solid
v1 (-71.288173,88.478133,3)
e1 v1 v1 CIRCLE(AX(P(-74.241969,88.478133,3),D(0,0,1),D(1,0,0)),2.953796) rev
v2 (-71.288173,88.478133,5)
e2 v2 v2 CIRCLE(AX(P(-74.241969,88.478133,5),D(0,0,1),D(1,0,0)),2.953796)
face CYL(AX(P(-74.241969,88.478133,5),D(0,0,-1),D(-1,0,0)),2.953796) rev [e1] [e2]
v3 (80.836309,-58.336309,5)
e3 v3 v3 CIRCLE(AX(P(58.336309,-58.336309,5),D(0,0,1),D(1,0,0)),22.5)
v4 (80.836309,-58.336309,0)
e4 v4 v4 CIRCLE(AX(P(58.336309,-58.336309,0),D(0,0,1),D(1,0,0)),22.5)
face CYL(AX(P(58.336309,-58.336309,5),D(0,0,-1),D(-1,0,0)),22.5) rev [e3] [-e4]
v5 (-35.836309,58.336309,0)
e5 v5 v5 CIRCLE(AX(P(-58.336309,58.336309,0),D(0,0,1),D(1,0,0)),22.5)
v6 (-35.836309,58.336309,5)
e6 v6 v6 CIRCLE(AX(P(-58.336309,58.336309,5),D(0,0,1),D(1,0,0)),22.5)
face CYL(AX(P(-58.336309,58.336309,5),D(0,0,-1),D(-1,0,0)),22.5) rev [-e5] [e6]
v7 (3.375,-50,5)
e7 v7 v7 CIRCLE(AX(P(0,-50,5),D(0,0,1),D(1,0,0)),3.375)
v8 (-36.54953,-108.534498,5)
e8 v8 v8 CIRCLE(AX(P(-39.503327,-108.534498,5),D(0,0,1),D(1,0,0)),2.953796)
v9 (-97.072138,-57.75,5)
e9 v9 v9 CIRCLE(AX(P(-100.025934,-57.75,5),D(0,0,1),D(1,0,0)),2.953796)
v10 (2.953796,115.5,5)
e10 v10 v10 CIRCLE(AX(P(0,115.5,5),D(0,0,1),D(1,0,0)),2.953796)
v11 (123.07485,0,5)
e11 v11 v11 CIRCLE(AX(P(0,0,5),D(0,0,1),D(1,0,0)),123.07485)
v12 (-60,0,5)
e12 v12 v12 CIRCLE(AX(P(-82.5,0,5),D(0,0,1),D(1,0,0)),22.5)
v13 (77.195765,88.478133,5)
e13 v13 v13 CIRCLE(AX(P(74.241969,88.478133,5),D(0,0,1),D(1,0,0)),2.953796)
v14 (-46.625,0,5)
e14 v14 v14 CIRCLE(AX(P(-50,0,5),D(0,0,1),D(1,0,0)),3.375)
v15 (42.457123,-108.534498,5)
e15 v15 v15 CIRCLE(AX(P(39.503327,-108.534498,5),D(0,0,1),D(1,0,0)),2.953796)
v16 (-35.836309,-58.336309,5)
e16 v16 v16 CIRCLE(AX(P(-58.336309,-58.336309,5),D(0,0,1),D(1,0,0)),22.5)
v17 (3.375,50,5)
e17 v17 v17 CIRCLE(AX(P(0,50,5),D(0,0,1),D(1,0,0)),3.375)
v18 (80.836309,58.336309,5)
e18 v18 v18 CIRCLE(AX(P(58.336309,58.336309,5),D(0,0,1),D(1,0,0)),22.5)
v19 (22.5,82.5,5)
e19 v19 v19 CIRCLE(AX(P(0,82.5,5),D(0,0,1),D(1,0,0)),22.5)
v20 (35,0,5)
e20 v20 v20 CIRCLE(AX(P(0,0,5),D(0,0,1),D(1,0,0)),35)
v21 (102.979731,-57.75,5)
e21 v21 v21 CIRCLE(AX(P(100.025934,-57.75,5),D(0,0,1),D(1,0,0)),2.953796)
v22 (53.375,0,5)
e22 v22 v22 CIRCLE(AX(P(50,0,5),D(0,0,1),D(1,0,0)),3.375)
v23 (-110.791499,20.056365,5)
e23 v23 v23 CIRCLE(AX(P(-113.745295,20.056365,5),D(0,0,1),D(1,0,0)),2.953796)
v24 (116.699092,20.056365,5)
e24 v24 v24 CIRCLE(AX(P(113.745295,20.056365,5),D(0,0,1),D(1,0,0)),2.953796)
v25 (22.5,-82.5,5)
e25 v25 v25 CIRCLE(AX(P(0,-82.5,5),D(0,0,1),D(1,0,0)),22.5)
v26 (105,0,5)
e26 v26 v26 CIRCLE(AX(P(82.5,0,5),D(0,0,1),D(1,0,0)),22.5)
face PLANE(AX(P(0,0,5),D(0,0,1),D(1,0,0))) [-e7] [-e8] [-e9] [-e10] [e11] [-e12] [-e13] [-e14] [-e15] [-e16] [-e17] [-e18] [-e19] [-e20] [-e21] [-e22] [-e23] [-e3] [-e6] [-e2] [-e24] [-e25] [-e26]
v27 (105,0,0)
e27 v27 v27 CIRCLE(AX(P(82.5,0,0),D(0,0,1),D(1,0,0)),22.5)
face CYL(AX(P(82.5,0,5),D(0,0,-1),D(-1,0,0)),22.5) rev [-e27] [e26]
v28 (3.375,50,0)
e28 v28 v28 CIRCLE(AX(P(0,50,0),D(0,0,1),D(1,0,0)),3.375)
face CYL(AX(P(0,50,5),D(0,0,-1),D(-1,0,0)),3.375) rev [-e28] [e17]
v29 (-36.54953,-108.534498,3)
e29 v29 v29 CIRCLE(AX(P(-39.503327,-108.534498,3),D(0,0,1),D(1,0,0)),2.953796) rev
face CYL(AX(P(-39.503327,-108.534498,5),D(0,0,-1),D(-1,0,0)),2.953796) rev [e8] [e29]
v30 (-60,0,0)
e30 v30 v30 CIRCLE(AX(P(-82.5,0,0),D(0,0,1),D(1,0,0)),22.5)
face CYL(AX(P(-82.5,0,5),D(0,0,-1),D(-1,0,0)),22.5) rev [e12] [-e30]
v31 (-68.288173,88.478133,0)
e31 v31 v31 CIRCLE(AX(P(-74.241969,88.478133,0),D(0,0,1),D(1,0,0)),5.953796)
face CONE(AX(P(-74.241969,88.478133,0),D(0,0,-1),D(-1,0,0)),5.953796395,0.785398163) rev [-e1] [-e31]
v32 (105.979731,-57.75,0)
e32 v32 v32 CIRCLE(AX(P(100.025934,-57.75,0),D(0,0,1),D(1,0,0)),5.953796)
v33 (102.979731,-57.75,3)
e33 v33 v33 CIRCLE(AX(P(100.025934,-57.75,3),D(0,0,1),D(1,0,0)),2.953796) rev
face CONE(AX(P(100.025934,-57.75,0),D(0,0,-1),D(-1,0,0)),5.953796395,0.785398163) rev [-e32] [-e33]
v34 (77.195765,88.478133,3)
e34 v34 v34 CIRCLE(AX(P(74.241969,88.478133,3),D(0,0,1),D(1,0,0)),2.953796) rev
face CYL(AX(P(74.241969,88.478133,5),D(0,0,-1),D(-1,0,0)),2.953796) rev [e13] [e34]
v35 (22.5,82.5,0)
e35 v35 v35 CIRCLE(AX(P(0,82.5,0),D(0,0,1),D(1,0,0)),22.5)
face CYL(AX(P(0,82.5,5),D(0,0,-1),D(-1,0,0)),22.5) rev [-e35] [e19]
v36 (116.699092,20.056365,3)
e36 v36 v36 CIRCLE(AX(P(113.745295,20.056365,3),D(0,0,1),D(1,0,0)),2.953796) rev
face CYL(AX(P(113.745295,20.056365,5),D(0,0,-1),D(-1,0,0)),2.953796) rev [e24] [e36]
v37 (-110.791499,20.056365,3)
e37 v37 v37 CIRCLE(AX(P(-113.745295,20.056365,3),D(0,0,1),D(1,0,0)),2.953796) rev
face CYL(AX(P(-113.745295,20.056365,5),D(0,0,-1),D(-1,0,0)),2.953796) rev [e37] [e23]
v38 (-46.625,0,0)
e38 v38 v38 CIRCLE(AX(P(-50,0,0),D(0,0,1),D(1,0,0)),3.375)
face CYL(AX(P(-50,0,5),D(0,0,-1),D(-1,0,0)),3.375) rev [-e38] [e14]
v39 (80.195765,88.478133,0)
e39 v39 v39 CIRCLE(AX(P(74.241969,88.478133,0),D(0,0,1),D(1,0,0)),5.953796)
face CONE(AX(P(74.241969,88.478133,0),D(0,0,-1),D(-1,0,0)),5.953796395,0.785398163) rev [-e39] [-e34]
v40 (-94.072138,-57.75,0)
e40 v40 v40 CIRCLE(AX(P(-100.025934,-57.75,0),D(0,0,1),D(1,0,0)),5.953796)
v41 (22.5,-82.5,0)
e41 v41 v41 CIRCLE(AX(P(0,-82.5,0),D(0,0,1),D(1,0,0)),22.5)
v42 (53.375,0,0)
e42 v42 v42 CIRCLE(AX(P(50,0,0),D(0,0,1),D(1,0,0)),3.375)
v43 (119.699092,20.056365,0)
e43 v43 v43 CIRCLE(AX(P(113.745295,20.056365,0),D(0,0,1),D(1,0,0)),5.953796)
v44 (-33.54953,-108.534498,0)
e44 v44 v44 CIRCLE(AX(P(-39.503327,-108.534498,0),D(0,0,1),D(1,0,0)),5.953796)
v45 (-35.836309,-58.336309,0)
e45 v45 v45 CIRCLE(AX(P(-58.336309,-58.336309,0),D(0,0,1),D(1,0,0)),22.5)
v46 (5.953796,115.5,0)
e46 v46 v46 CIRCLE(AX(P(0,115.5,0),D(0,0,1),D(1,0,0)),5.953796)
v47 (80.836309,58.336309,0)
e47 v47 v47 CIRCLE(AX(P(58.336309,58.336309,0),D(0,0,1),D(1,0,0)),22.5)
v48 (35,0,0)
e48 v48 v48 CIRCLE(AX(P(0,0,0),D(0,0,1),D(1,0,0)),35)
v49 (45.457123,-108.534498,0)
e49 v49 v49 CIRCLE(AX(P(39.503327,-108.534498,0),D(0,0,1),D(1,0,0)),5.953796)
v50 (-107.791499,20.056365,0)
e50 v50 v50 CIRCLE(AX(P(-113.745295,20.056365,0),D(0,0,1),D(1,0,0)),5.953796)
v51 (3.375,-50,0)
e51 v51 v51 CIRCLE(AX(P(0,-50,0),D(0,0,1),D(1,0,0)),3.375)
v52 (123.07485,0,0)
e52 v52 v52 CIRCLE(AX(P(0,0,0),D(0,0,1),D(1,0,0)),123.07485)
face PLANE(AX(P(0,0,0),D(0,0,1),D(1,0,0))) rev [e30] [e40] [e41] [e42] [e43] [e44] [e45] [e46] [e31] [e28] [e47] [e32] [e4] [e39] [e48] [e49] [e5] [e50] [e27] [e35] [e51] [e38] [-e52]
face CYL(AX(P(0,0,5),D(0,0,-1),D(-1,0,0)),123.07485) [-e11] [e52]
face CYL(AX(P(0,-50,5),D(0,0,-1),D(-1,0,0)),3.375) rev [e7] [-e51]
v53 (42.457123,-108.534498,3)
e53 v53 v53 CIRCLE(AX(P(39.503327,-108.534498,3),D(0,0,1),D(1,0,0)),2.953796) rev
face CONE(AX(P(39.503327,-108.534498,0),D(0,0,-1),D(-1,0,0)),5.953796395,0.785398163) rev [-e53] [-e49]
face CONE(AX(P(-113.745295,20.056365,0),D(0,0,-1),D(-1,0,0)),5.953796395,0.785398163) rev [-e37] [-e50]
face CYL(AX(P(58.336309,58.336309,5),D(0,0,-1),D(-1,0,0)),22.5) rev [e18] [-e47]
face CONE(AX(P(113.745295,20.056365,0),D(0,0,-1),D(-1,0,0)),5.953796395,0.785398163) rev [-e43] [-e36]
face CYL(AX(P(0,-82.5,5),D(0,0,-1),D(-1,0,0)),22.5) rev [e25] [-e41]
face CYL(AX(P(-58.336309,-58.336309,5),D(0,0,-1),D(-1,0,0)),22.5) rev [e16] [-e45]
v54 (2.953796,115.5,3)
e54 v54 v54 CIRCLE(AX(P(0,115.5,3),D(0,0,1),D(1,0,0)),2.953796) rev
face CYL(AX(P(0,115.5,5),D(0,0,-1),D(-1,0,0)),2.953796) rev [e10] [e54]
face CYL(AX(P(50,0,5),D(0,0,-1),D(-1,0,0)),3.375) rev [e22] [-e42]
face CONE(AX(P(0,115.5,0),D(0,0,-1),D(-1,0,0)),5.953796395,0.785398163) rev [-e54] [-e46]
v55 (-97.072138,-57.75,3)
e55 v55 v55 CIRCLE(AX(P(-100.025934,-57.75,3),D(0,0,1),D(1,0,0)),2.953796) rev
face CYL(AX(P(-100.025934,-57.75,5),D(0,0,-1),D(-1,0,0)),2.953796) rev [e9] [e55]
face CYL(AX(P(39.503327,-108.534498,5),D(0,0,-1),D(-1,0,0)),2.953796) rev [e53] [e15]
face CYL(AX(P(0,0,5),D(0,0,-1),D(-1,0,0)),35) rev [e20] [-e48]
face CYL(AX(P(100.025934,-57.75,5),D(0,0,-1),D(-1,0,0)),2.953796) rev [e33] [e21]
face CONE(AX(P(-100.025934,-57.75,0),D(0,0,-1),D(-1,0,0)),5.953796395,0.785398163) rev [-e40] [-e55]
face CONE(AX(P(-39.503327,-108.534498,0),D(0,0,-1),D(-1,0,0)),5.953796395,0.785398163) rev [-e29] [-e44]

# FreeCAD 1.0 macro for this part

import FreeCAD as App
import Part
import Sketcher


def edges_at(feature, points):
    """Names of the edges that pass closest to the given points."""
    edges = feature.Shape.Edges
    near = lambda p: min(range(len(edges)), key=lambda i: edges[i].distToShape(Part.Vertex(*p))[0])
    return sorted({f"Edge{near(p) + 1}" for p in points})

doc = App.newDocument("Part")
body = doc.addObject("PartDesign::Body", "Body")

# Sketch on XY plane
sketch1 = body.newObject("Sketcher::SketchObject", "Sketch")
sketch1.AttachmentSupport = (doc.getObject("XY_Plane"), [""])
sketch1.MapMode = "FlatFace"
sketch1.addGeometry([
    Part.Circle(App.Vector(0, 0, 0), App.Vector(0, 0, 1), 123.1),  # 0
    Part.Circle(App.Vector(-100, -57.8, 0), App.Vector(0, 0, 1), 3),  # 1
    Part.Circle(App.Vector(-39.5, -108.5, 0), App.Vector(0, 0, 1), 3),  # 2
    Part.Circle(App.Vector(-58.3, -58.3, 0), App.Vector(0, 0, 1), 22.5),  # 3
    Part.Circle(App.Vector(0, -82.5, 0), App.Vector(0, 0, 1), 22.5),  # 4
    Part.Circle(App.Vector(-82.5, 0, 0), App.Vector(0, 0, 1), 22.5),  # 5
    Part.Circle(App.Vector(-50, 0, 0), App.Vector(0, 0, 1), 3.4),  # 6
    Part.Circle(App.Vector(0, 0, 0), App.Vector(0, 0, 1), 35),  # 7
    Part.Circle(App.Vector(39.5, -108.5, 0), App.Vector(0, 0, 1), 3),  # 8
    Part.Circle(App.Vector(58.3, -58.3, 0), App.Vector(0, 0, 1), 22.5),  # 9
    Part.Circle(App.Vector(100, -57.8, 0), App.Vector(0, 0, 1), 3),  # 10
    Part.Circle(App.Vector(0, -50, 0), App.Vector(0, 0, 1), 3.4),  # 11
    Part.Circle(App.Vector(50, 0, 0), App.Vector(0, 0, 1), 3.4),  # 12
    Part.Circle(App.Vector(82.5, 0, 0), App.Vector(0, 0, 1), 22.5),  # 13
    Part.Circle(App.Vector(-113.7, 20.1, 0), App.Vector(0, 0, 1), 3),  # 14
    Part.Circle(App.Vector(-58.3, 58.3, 0), App.Vector(0, 0, 1), 22.5),  # 15
    Part.Circle(App.Vector(-74.2, 88.5, 0), App.Vector(0, 0, 1), 3),  # 16
    Part.Circle(App.Vector(0, 82.5, 0), App.Vector(0, 0, 1), 22.5),  # 17
    Part.Circle(App.Vector(0, 50, 0), App.Vector(0, 0, 1), 3.4),  # 18
    Part.Circle(App.Vector(58.3, 58.3, 0), App.Vector(0, 0, 1), 22.5),  # 19
    Part.Circle(App.Vector(113.7, 20.1, 0), App.Vector(0, 0, 1), 3),  # 20
    Part.Circle(App.Vector(0, 115.5, 0), App.Vector(0, 0, 1), 3),  # 21
    Part.Circle(App.Vector(74.2, 88.5, 0), App.Vector(0, 0, 1), 3),  # 22
], False)
sketch1.addConstraint([
    Sketcher.Constraint("Coincident", 0, 3, -1, 1),
    Sketcher.Constraint("Coincident", 7, 3, -1, 1),
    Sketcher.Constraint("Equal", 1, 2),
    Sketcher.Constraint("Equal", 3, 4),
    Sketcher.Constraint("Equal", 4, 5),
    Sketcher.Constraint("Equal", 2, 8),
    Sketcher.Constraint("Equal", 5, 9),
    Sketcher.Constraint("Equal", 8, 10),
    Sketcher.Constraint("Equal", 6, 11),
    Sketcher.Constraint("Equal", 11, 12),
    Sketcher.Constraint("Equal", 9, 13),
    Sketcher.Constraint("Equal", 10, 14),
    Sketcher.Constraint("Equal", 13, 15),
    Sketcher.Constraint("Equal", 14, 16),
    Sketcher.Constraint("Equal", 15, 17),
    Sketcher.Constraint("Equal", 12, 18),
    Sketcher.Constraint("Equal", 17, 19),
    Sketcher.Constraint("Equal", 16, 20),
    Sketcher.Constraint("Equal", 20, 21),
    Sketcher.Constraint("Equal", 21, 22),
    Sketcher.Constraint("Symmetric", 6, 3, 12, 3, -1, 1),
    Sketcher.Constraint("Symmetric", 5, 3, 13, 3, -1, 1),
    Sketcher.Constraint("Symmetric", 9, 3, 15, 3, -1, 1),
    Sketcher.Constraint("Symmetric", 4, 3, 17, 3, -1, 1),
    Sketcher.Constraint("Symmetric", 11, 3, 18, 3, -1, 1),
    Sketcher.Constraint("Symmetric", 3, 3, 19, 3, -1, 1),
    Sketcher.Constraint("Symmetric", 2, 3, 8, 3, -2),
    Sketcher.Constraint("Symmetric", 3, 3, 9, 3, -2),
    Sketcher.Constraint("Symmetric", 1, 3, 10, 3, -2),
    Sketcher.Constraint("Symmetric", 14, 3, 20, 3, -2),
    Sketcher.Constraint("Symmetric", 16, 3, 22, 3, -2),
    Sketcher.Constraint("PointOnObject", 4, 3, -2),
    Sketcher.Constraint("PointOnObject", 5, 3, -1),
    Sketcher.Constraint("PointOnObject", 6, 3, -1),
    Sketcher.Constraint("PointOnObject", 11, 3, -2),
    Sketcher.Constraint("PointOnObject", 21, 3, -2),
    Sketcher.Constraint("Diameter", 3, 45.0),
    Sketcher.Constraint("Diameter", 7, 70.0),
    Sketcher.Constraint("Diameter", 6, 6.75),
    Sketcher.Constraint("DistanceX", 6, 3, -1, 1, 50.0),
    Sketcher.Constraint("DistanceY", 11, 3, -1, 1, 50.0),
    Sketcher.Constraint("DistanceY", 17, 3, 21, 3, 33.0),
    Sketcher.Constraint("Diameter", 0, 246.1497),
    Sketcher.Constraint("DistanceY", 4, 3, -1, 1, 82.5),
    Sketcher.Constraint("DistanceX", 5, 3, -1, 1, 82.5),
    Sketcher.Constraint("DistanceY", 1, 3, -1, 1, 57.75),
    Sketcher.Constraint("Diameter", 1, 5.907593),
    Sketcher.Constraint("DistanceX", 3, 3, -1, 1, 58.336309),
    Sketcher.Constraint("DistanceY", 3, 3, -1, 1, 58.336309),
    Sketcher.Constraint("DistanceX", 16, 3, -1, 1, 74.241969),
    Sketcher.Constraint("DistanceY", 2, 3, 3, 3, 50.198188),
    Sketcher.Constraint("DistanceX", 14, 3, 1, 3, 13.719361),
    Sketcher.Constraint("DistanceY", 14, 3, 16, 3, 68.421769),
    Sketcher.Constraint("DistanceX", 1, 3, -1, 1, 100.025934),
    Sketcher.Constraint("DistanceX", 2, 3, -1, 1, 39.503327),
    Sketcher.Constraint("DistanceY", -1, 1, 14, 3, 20.056365),
])
pad1 = body.newObject("PartDesign::Pad", "Pad")
pad1.Profile = sketch1
pad1.Length = 5
doc.recompute()

chamfer = body.newObject("PartDesign::Chamfer", "Chamfer")
chamfer.Base = (pad1, edges_at(pad1, [
    (71.288, 88.478, 0),
    (110.791, 20.056, 0),
    (97.072, -57.75, 0),
    (36.55, -108.534, 0),
    (-42.457, -108.534, 0),
    (-102.98, -57.75, 0),
    (-116.699, 20.056, 0),
    (-77.196, 88.478, 0),
    (-2.954, 115.5, 0),
]))
chamfer.Size = 3

doc.recompute()
